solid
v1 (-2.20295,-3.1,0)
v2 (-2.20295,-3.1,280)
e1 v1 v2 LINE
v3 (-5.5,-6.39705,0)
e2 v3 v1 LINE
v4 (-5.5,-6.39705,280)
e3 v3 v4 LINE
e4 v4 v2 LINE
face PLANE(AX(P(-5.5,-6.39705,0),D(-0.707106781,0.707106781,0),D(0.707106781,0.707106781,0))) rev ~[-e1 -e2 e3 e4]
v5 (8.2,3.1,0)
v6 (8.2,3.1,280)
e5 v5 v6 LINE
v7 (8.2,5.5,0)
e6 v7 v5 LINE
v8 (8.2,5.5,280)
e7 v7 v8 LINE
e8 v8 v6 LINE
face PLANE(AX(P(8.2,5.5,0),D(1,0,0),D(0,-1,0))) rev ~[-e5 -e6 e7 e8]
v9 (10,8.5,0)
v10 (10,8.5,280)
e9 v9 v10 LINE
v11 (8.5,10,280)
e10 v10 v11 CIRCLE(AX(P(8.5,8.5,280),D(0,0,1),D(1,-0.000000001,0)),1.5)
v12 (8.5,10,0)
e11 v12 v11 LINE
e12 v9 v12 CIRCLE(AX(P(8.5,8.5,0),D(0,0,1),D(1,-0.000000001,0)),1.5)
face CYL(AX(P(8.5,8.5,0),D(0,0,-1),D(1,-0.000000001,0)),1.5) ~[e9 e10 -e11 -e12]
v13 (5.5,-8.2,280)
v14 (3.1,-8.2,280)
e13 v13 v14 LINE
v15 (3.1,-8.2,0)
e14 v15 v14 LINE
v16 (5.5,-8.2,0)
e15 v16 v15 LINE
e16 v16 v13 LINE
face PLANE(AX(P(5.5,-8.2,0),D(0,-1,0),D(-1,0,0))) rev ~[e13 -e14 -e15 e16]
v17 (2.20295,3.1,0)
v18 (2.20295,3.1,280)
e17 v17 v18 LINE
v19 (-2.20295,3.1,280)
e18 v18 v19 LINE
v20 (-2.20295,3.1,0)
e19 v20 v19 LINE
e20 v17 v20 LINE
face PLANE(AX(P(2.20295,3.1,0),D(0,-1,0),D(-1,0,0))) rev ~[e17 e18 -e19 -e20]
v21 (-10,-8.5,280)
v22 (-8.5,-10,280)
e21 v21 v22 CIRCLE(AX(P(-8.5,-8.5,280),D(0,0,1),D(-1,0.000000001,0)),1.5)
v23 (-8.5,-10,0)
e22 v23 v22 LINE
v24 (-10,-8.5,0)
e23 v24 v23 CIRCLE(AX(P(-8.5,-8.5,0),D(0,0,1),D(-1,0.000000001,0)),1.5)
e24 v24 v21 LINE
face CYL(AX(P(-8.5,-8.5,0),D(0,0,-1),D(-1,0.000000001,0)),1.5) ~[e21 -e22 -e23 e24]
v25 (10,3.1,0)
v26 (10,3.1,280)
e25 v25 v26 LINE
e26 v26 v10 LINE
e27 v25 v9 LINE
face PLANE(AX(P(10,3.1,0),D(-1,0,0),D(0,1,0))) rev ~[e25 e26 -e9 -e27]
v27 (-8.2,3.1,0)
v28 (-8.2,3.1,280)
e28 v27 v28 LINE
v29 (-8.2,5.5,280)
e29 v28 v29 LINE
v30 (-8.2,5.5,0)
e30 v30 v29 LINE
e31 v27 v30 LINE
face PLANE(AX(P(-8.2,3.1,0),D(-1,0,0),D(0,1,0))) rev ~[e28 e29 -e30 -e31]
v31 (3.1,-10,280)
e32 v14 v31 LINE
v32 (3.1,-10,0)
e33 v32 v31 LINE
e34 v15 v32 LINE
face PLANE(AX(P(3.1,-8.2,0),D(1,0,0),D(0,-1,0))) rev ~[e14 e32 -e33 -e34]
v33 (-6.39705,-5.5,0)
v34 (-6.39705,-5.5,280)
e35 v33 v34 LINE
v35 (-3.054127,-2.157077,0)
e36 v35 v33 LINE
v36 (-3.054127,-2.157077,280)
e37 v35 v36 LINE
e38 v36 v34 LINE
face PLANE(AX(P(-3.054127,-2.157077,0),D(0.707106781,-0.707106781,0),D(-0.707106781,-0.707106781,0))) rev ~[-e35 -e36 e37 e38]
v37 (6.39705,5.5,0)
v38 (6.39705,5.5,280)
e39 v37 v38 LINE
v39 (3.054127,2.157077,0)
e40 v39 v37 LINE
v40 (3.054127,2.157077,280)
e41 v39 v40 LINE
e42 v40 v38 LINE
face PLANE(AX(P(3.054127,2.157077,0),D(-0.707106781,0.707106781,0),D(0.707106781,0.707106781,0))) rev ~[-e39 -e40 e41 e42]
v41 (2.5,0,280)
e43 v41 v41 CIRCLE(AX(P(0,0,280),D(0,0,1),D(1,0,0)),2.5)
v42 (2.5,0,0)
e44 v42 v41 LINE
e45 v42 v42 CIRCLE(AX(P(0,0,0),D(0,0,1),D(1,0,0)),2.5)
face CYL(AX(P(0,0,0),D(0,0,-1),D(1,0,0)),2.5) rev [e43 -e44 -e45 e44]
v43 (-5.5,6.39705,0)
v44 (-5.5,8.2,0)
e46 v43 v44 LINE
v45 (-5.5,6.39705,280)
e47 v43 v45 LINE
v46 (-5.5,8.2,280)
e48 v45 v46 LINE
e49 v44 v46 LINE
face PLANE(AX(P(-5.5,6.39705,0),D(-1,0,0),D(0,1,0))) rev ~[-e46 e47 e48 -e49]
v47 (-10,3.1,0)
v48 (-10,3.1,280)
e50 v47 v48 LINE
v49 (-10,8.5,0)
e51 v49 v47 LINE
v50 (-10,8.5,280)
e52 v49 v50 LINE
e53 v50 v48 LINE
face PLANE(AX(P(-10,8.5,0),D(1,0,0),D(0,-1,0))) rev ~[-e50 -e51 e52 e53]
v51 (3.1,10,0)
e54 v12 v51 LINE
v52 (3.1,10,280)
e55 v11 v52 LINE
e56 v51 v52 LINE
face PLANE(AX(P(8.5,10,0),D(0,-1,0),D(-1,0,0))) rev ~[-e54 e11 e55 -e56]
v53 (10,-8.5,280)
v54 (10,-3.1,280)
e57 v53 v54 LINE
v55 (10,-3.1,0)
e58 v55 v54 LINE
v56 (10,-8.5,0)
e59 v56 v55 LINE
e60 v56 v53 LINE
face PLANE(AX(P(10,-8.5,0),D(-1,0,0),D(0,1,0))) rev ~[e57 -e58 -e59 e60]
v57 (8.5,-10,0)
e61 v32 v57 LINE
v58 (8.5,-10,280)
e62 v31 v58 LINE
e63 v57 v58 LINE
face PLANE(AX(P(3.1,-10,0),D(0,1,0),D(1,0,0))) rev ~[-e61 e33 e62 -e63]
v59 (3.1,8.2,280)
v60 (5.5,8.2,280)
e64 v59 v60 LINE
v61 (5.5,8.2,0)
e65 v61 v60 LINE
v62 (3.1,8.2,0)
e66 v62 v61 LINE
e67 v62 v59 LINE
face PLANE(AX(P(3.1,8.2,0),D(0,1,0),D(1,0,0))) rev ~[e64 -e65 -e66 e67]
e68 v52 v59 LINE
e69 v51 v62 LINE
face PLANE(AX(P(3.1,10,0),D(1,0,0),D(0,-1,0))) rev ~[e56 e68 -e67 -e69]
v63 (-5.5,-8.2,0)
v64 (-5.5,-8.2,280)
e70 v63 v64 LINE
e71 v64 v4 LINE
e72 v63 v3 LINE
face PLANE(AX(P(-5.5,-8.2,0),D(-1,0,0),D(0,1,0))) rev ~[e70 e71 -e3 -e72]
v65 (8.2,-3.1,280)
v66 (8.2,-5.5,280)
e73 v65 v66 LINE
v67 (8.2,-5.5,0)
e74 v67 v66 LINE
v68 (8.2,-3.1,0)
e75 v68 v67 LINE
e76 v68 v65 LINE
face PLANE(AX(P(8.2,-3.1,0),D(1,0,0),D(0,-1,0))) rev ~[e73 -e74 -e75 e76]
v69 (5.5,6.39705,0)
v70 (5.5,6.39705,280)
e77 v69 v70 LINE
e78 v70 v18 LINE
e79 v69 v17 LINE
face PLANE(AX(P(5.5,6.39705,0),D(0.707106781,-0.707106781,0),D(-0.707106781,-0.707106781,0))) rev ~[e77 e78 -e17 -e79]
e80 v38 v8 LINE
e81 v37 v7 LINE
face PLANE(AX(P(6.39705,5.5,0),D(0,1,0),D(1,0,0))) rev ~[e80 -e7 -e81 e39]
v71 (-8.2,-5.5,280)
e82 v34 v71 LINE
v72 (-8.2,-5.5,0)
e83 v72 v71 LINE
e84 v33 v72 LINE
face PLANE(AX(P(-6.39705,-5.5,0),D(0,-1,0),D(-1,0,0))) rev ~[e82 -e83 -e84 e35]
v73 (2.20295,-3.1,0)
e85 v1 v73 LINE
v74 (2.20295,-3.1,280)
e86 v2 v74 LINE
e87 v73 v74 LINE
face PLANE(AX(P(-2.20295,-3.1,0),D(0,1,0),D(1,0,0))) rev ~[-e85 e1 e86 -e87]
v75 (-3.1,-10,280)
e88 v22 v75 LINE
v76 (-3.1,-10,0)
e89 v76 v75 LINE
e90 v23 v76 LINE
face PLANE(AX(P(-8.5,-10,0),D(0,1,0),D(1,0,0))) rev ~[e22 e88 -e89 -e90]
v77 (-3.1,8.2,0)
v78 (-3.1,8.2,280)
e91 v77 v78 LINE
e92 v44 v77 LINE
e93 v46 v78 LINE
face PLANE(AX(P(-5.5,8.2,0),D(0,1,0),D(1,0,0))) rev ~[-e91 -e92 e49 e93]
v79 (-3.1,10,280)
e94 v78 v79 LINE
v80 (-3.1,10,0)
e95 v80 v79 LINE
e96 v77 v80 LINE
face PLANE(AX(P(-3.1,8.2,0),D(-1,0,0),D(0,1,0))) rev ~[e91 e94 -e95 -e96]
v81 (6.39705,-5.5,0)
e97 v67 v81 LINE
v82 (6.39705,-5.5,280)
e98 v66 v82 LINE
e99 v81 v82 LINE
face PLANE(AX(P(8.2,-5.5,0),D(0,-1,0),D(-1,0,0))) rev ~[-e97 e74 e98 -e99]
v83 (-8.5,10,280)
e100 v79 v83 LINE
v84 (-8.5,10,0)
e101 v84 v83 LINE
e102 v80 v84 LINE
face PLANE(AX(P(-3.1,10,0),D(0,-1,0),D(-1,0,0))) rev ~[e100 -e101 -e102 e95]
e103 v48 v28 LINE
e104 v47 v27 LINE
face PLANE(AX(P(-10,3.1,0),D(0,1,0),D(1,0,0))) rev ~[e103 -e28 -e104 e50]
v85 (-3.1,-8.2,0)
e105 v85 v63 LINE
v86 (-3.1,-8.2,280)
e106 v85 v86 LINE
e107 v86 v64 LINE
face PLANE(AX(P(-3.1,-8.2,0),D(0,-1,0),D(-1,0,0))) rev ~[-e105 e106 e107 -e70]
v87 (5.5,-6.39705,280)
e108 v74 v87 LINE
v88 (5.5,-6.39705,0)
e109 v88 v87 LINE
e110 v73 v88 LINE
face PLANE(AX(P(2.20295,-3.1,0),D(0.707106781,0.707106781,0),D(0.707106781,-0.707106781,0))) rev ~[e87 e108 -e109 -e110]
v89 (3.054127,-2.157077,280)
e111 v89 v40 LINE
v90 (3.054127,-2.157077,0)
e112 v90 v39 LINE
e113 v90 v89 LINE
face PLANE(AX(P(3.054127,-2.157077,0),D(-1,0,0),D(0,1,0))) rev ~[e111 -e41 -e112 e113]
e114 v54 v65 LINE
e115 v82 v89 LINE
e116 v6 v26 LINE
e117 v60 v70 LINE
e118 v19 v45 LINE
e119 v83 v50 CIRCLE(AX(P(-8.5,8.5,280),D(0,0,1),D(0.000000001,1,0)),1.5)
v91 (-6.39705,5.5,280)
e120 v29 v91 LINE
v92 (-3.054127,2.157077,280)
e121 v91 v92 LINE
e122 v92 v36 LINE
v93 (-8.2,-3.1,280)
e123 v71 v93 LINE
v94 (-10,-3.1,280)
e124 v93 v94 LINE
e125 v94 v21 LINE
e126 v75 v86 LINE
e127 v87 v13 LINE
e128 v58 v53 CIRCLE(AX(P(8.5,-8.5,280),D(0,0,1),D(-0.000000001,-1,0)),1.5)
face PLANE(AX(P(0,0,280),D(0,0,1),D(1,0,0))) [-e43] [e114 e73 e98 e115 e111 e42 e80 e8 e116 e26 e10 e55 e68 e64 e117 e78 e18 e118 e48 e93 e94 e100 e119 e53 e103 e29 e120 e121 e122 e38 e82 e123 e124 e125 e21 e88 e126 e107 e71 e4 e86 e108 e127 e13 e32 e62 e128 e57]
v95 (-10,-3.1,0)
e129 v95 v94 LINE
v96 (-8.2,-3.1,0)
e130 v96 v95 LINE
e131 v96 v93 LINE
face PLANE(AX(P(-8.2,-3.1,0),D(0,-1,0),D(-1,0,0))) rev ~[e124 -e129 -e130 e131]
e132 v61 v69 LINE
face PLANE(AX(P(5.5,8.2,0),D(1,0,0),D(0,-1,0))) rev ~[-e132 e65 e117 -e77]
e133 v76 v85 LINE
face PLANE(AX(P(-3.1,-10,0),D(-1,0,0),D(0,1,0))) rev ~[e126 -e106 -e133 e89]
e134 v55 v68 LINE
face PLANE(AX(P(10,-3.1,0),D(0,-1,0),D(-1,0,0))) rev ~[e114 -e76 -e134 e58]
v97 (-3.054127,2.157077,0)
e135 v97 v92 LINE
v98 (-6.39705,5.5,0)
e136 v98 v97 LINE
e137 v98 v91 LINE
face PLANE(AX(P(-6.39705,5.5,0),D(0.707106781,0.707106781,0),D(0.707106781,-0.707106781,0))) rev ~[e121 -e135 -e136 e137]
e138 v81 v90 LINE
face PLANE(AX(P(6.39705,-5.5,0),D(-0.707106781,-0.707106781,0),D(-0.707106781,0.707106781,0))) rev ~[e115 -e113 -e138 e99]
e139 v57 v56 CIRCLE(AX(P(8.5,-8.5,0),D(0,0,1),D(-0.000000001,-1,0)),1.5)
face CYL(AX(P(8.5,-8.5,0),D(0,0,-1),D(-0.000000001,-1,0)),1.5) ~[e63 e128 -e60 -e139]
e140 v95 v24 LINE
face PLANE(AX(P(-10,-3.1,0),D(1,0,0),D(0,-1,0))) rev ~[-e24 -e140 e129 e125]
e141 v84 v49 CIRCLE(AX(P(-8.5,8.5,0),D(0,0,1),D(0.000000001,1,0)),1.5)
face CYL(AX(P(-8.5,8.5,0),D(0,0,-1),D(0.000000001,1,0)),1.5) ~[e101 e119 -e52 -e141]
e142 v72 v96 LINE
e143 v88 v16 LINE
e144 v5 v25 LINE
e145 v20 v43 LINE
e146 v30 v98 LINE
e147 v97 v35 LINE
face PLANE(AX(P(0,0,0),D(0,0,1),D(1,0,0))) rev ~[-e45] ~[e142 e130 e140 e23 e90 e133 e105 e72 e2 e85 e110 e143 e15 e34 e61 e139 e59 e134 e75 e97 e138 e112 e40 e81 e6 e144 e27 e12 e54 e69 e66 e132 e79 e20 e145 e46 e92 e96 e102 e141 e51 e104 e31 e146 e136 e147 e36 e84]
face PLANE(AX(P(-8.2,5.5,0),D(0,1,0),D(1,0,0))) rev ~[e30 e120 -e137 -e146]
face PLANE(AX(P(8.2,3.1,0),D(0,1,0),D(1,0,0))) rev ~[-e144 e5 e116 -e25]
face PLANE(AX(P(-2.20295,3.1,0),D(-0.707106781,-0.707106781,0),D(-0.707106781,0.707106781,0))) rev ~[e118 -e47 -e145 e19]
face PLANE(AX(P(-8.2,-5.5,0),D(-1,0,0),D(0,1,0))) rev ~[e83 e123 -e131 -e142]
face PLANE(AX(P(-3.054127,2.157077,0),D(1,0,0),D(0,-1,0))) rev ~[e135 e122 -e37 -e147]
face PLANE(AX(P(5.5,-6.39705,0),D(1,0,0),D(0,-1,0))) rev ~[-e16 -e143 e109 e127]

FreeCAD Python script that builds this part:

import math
import FreeCAD as App
import Part
import Sketcher
from FreeCAD import Vector
Q = App.Units.Quantity

doc = App.newDocument("Part")
body = doc.addObject("PartDesign::Body", "Body")

sketch1 = body.newObject("Sketcher::SketchObject", "Sketch")
sketch1.AttachmentSupport = (doc.getObject("XY_Plane"), [""])
sketch1.MapMode = "FlatFace"
sketch1.addGeometry([
    Part.LineSegment(Vector(-8.2, -3.1, 0), Vector(-10, -3.1, 0)),
    Part.LineSegment(Vector(-10, -3.1, 0), Vector(-10, -8.5, 0)),
    Part.ArcOfCircle(Part.Circle(Vector(-8.5, -8.5, 0), Vector(0, 0, 1), 1.5), math.radians(180), math.radians(270)),
    Part.LineSegment(Vector(-8.5, -10, 0), Vector(-3.1, -10, 0)),
    Part.LineSegment(Vector(-3.1, -10, 0), Vector(-3.1, -8.2, 0)),
    Part.LineSegment(Vector(-3.1, -8.2, 0), Vector(-5.5, -8.2, 0)),
    Part.LineSegment(Vector(-5.5, -8.2, 0), Vector(-5.5, -6.4, 0)),
    Part.LineSegment(Vector(-5.5, -6.4, 0), Vector(-2.2, -3.1, 0)),
    Part.LineSegment(Vector(-2.2, -3.1, 0), Vector(2.2, -3.1, 0)),
    Part.LineSegment(Vector(2.2, -3.1, 0), Vector(5.5, -6.4, 0)),
    Part.LineSegment(Vector(5.5, -6.4, 0), Vector(5.5, -8.2, 0)),
    Part.LineSegment(Vector(5.5, -8.2, 0), Vector(3.1, -8.2, 0)),
    Part.LineSegment(Vector(3.1, -8.2, 0), Vector(3.1, -10, 0)),
    Part.LineSegment(Vector(3.1, -10, 0), Vector(8.5, -10, 0)),
    Part.ArcOfCircle(Part.Circle(Vector(8.5, -8.5, 0), Vector(0, 0, 1), 1.5), math.radians(-90), math.radians(0)),
    Part.LineSegment(Vector(10, -8.5, 0), Vector(10, -3.1, 0)),
    Part.LineSegment(Vector(10, -3.1, 0), Vector(8.2, -3.1, 0)),
    Part.LineSegment(Vector(8.2, -3.1, 0), Vector(8.2, -5.5, 0)),
    Part.LineSegment(Vector(8.2, -5.5, 0), Vector(6.4, -5.5, 0)),
    Part.LineSegment(Vector(6.4, -5.5, 0), Vector(3.1, -2.2, 0)),
    Part.LineSegment(Vector(3.1, -2.2, 0), Vector(3.1, 2.2, 0)),
    Part.LineSegment(Vector(3.1, 2.2, 0), Vector(6.4, 5.5, 0)),
    Part.LineSegment(Vector(6.4, 5.5, 0), Vector(8.2, 5.5, 0)),
    Part.LineSegment(Vector(8.2, 5.5, 0), Vector(8.2, 3.1, 0)),
    Part.LineSegment(Vector(8.2, 3.1, 0), Vector(10, 3.1, 0)),
    Part.LineSegment(Vector(10, 3.1, 0), Vector(10, 8.5, 0)),
    Part.ArcOfCircle(Part.Circle(Vector(8.5, 8.5, 0), Vector(0, 0, 1), 1.5), math.radians(0), math.radians(90)),
    Part.LineSegment(Vector(8.5, 10, 0), Vector(3.1, 10, 0)),
    Part.LineSegment(Vector(3.1, 10, 0), Vector(3.1, 8.2, 0)),
    Part.LineSegment(Vector(3.1, 8.2, 0), Vector(5.5, 8.2, 0)),
    Part.LineSegment(Vector(5.5, 8.2, 0), Vector(5.5, 6.4, 0)),
    Part.LineSegment(Vector(5.5, 6.4, 0), Vector(2.2, 3.1, 0)),
    Part.LineSegment(Vector(2.2, 3.1, 0), Vector(-2.2, 3.1, 0)),
    Part.LineSegment(Vector(-2.2, 3.1, 0), Vector(-5.5, 6.4, 0)),
    Part.LineSegment(Vector(-5.5, 6.4, 0), Vector(-5.5, 8.2, 0)),
    Part.LineSegment(Vector(-5.5, 8.2, 0), Vector(-3.1, 8.2, 0)),
    Part.LineSegment(Vector(-3.1, 8.2, 0), Vector(-3.1, 10, 0)),
    Part.LineSegment(Vector(-3.1, 10, 0), Vector(-8.5, 10, 0)),
    Part.ArcOfCircle(Part.Circle(Vector(-8.5, 8.5, 0), Vector(0, 0, 1), 1.5), math.radians(90), math.radians(180)),
    Part.LineSegment(Vector(-10, 8.5, 0), Vector(-10, 3.1, 0)),
    Part.LineSegment(Vector(-10, 3.1, 0), Vector(-8.2, 3.1, 0)),
    Part.LineSegment(Vector(-8.2, 3.1, 0), Vector(-8.2, 5.5, 0)),
    Part.LineSegment(Vector(-8.2, 5.5, 0), Vector(-6.4, 5.5, 0)),
    Part.LineSegment(Vector(-6.4, 5.5, 0), Vector(-3.1, 2.2, 0)),
    Part.LineSegment(Vector(-3.1, 2.2, 0), Vector(-3.1, -2.2, 0)),
    Part.LineSegment(Vector(-3.1, -2.2, 0), Vector(-6.4, -5.5, 0)),
    Part.LineSegment(Vector(-6.4, -5.5, 0), Vector(-8.2, -5.5, 0)),
    Part.LineSegment(Vector(-8.2, -5.5, 0), Vector(-8.2, -3.1, 0)),
    Part.Circle(Vector(0, 0, 0), Vector(0, 0, 1), 2.5),
], False)
sketch1.addConstraint([
    Sketcher.Constraint("Coincident", 0, 2, 1, 1),
    Sketcher.Constraint("Tangent", 1, 2, 2, 1),
    Sketcher.Constraint("Tangent", 2, 2, 3, 1),
    Sketcher.Constraint("Coincident", 3, 2, 4, 1),
    Sketcher.Constraint("Coincident", 4, 2, 5, 1),
    Sketcher.Constraint("Coincident", 5, 2, 6, 1),
    Sketcher.Constraint("Coincident", 6, 2, 7, 1),
    Sketcher.Constraint("Coincident", 7, 2, 8, 1),
    Sketcher.Constraint("Coincident", 8, 2, 9, 1),
    Sketcher.Constraint("Coincident", 9, 2, 10, 1),
    Sketcher.Constraint("Coincident", 10, 2, 11, 1),
    Sketcher.Constraint("Coincident", 11, 2, 12, 1),
    Sketcher.Constraint("Coincident", 12, 2, 13, 1),
    Sketcher.Constraint("Tangent", 13, 2, 14, 1),
    Sketcher.Constraint("Tangent", 14, 2, 15, 1),
    Sketcher.Constraint("Coincident", 15, 2, 16, 1),
    Sketcher.Constraint("Coincident", 16, 2, 17, 1),
    Sketcher.Constraint("Coincident", 17, 2, 18, 1),
    Sketcher.Constraint("Coincident", 18, 2, 19, 1),
    Sketcher.Constraint("Coincident", 19, 2, 20, 1),
    Sketcher.Constraint("Coincident", 20, 2, 21, 1),
    Sketcher.Constraint("Coincident", 21, 2, 22, 1),
    Sketcher.Constraint("Coincident", 22, 2, 23, 1),
    Sketcher.Constraint("Coincident", 23, 2, 24, 1),
    Sketcher.Constraint("Coincident", 24, 2, 25, 1),
    Sketcher.Constraint("Tangent", 25, 2, 26, 1),
    Sketcher.Constraint("Tangent", 26, 2, 27, 1),
    Sketcher.Constraint("Coincident", 27, 2, 28, 1),
    Sketcher.Constraint("Coincident", 28, 2, 29, 1),
    Sketcher.Constraint("Coincident", 29, 2, 30, 1),
    Sketcher.Constraint("Coincident", 30, 2, 31, 1),
    Sketcher.Constraint("Coincident", 31, 2, 32, 1),
    Sketcher.Constraint("Coincident", 32, 2, 33, 1),
    Sketcher.Constraint("Coincident", 33, 2, 34, 1),
    Sketcher.Constraint("Coincident", 34, 2, 35, 1),
    Sketcher.Constraint("Coincident", 35, 2, 36, 1),
    Sketcher.Constraint("Coincident", 36, 2, 37, 1),
    Sketcher.Constraint("Tangent", 37, 2, 38, 1),
    Sketcher.Constraint("Tangent", 38, 2, 39, 1),
    Sketcher.Constraint("Coincident", 39, 2, 40, 1),
    Sketcher.Constraint("Coincident", 40, 2, 41, 1),
    Sketcher.Constraint("Coincident", 41, 2, 42, 1),
    Sketcher.Constraint("Coincident", 42, 2, 43, 1),
    Sketcher.Constraint("Coincident", 43, 2, 44, 1),
    Sketcher.Constraint("Coincident", 44, 2, 45, 1),
    Sketcher.Constraint("Coincident", 45, 2, 46, 1),
    Sketcher.Constraint("Coincident", 46, 2, 47, 1),
    Sketcher.Constraint("Coincident", 47, 2, 0, 1),
    Sketcher.Constraint("Horizontal", 0),
    Sketcher.Constraint("Vertical", 1),
    Sketcher.Constraint("Horizontal", 3),
    Sketcher.Constraint("Vertical", 4),
    Sketcher.Constraint("Horizontal", 5),
    Sketcher.Constraint("Vertical", 6),
    Sketcher.Constraint("Horizontal", 8),
    Sketcher.Constraint("Vertical", 10),
    Sketcher.Constraint("Horizontal", 11),
    Sketcher.Constraint("Vertical", 12),
    Sketcher.Constraint("Horizontal", 13),
    Sketcher.Constraint("Vertical", 15),
    Sketcher.Constraint("Horizontal", 16),
    Sketcher.Constraint("Vertical", 17),
    Sketcher.Constraint("Horizontal", 18),
    Sketcher.Constraint("Vertical", 20),
    Sketcher.Constraint("Horizontal", 22),
    Sketcher.Constraint("Vertical", 23),
    Sketcher.Constraint("Horizontal", 24),
    Sketcher.Constraint("Vertical", 25),
    Sketcher.Constraint("Horizontal", 27),
    Sketcher.Constraint("Vertical", 28),
    Sketcher.Constraint("Horizontal", 29),
    Sketcher.Constraint("Vertical", 30),
    Sketcher.Constraint("Horizontal", 32),
    Sketcher.Constraint("Vertical", 34),
    Sketcher.Constraint("Horizontal", 35),
    Sketcher.Constraint("Vertical", 36),
    Sketcher.Constraint("Horizontal", 37),
    Sketcher.Constraint("Vertical", 39),
    Sketcher.Constraint("Horizontal", 40),
    Sketcher.Constraint("Vertical", 41),
    Sketcher.Constraint("Horizontal", 42),
    Sketcher.Constraint("Vertical", 44),
    Sketcher.Constraint("Horizontal", 46),
    Sketcher.Constraint("Vertical", 47),
    Sketcher.Constraint("Coincident", 48, 3, -1, 1),
    Sketcher.Constraint("Equal", 2, 14),
    Sketcher.Constraint("Equal", 14, 26),
    Sketcher.Constraint("Equal", 26, 38),
    Sketcher.Constraint("Symmetric", 2, 3, 26, 3, -1, 1),
    Sketcher.Constraint("Symmetric", 14, 3, 38, 3, -1, 1),
    Sketcher.Constraint("Symmetric", 4, 2, 28, 2, -1, 1),
    Sketcher.Constraint("Symmetric", 6, 2, 30, 2, -1, 1),
    Sketcher.Constraint("Symmetric", 7, 2, 31, 2, -1, 1),
    Sketcher.Constraint("Symmetric", 9, 2, 33, 2, -1, 1),
    Sketcher.Constraint("Symmetric", 11, 2, 35, 2, -1, 1),
    Sketcher.Constraint("Symmetric", 16, 2, 40, 2, -1, 1),
    Sketcher.Constraint("Symmetric", 18, 2, 42, 2, -1, 1),
    Sketcher.Constraint("Symmetric", 19, 2, 43, 2, -1, 1),
    Sketcher.Constraint("Symmetric", 21, 2, 45, 2, -1, 1),
    Sketcher.Constraint("Symmetric", 23, 2, 47, 2, -1, 1),
    Sketcher.Constraint("Symmetric", 2, 3, 14, 3, -2),
    Sketcher.Constraint("Symmetric", 6, 2, 9, 2, -2),
    Sketcher.Constraint("Symmetric", 4, 2, 11, 2, -2),
    Sketcher.Constraint("Symmetric", 23, 2, 40, 2, -2),
    Sketcher.Constraint("Symmetric", 21, 2, 42, 2, -2),
    Sketcher.Constraint("Perpendicular", 7, 9),
    Sketcher.Constraint("Parallel", 9, 19),
    Sketcher.Constraint("Perpendicular", 19, 21),
    Sketcher.Constraint("Perpendicular", 31, 33),
    Sketcher.Constraint("Perpendicular", 43, 45),
    Sketcher.Constraint("Horizontal", 0, 2, 7, 2),
    Sketcher.Constraint("Horizontal", 20, 2, 43, 2),
    Sketcher.Constraint("Equal", 37, 1),
    Sketcher.Constraint("Equal", 40, 4),
    Sketcher.Constraint("Equal", 46, 6),
    Sketcher.Constraint("Equal", 35, 17),
    Sketcher.Constraint("Diameter", 48, Q("5 mm")),
    Sketcher.Constraint("Radius", 2, Q("1.5 mm")),
    Sketcher.Constraint("DistanceX", 0, 2, 0, 1, Q("1.8 mm")),
    Sketcher.Constraint("DistanceX", 3, 1, 3, 2, Q("5.4 mm")),
    Sketcher.Constraint("DistanceX", 5, 2, 5, 1, Q("2.4 mm")),
    Sketcher.Constraint("DistanceX", 0, 2, -1, 1, Q("10 mm")),
    Sketcher.Constraint("DistanceY", 2, 2, -1, 1, Q("10 mm")),
    Sketcher.Constraint("DistanceX", 8, 1, 8, 2, Q("4.4059 mm")),
    Sketcher.Constraint("DistanceY", 20, 1, 20, 2, Q("4.314154 mm")),
])
pad1 = body.newObject("PartDesign::Pad", "Pad")
pad1.Profile = sketch1
pad1.Length = 280

doc.recompute()
